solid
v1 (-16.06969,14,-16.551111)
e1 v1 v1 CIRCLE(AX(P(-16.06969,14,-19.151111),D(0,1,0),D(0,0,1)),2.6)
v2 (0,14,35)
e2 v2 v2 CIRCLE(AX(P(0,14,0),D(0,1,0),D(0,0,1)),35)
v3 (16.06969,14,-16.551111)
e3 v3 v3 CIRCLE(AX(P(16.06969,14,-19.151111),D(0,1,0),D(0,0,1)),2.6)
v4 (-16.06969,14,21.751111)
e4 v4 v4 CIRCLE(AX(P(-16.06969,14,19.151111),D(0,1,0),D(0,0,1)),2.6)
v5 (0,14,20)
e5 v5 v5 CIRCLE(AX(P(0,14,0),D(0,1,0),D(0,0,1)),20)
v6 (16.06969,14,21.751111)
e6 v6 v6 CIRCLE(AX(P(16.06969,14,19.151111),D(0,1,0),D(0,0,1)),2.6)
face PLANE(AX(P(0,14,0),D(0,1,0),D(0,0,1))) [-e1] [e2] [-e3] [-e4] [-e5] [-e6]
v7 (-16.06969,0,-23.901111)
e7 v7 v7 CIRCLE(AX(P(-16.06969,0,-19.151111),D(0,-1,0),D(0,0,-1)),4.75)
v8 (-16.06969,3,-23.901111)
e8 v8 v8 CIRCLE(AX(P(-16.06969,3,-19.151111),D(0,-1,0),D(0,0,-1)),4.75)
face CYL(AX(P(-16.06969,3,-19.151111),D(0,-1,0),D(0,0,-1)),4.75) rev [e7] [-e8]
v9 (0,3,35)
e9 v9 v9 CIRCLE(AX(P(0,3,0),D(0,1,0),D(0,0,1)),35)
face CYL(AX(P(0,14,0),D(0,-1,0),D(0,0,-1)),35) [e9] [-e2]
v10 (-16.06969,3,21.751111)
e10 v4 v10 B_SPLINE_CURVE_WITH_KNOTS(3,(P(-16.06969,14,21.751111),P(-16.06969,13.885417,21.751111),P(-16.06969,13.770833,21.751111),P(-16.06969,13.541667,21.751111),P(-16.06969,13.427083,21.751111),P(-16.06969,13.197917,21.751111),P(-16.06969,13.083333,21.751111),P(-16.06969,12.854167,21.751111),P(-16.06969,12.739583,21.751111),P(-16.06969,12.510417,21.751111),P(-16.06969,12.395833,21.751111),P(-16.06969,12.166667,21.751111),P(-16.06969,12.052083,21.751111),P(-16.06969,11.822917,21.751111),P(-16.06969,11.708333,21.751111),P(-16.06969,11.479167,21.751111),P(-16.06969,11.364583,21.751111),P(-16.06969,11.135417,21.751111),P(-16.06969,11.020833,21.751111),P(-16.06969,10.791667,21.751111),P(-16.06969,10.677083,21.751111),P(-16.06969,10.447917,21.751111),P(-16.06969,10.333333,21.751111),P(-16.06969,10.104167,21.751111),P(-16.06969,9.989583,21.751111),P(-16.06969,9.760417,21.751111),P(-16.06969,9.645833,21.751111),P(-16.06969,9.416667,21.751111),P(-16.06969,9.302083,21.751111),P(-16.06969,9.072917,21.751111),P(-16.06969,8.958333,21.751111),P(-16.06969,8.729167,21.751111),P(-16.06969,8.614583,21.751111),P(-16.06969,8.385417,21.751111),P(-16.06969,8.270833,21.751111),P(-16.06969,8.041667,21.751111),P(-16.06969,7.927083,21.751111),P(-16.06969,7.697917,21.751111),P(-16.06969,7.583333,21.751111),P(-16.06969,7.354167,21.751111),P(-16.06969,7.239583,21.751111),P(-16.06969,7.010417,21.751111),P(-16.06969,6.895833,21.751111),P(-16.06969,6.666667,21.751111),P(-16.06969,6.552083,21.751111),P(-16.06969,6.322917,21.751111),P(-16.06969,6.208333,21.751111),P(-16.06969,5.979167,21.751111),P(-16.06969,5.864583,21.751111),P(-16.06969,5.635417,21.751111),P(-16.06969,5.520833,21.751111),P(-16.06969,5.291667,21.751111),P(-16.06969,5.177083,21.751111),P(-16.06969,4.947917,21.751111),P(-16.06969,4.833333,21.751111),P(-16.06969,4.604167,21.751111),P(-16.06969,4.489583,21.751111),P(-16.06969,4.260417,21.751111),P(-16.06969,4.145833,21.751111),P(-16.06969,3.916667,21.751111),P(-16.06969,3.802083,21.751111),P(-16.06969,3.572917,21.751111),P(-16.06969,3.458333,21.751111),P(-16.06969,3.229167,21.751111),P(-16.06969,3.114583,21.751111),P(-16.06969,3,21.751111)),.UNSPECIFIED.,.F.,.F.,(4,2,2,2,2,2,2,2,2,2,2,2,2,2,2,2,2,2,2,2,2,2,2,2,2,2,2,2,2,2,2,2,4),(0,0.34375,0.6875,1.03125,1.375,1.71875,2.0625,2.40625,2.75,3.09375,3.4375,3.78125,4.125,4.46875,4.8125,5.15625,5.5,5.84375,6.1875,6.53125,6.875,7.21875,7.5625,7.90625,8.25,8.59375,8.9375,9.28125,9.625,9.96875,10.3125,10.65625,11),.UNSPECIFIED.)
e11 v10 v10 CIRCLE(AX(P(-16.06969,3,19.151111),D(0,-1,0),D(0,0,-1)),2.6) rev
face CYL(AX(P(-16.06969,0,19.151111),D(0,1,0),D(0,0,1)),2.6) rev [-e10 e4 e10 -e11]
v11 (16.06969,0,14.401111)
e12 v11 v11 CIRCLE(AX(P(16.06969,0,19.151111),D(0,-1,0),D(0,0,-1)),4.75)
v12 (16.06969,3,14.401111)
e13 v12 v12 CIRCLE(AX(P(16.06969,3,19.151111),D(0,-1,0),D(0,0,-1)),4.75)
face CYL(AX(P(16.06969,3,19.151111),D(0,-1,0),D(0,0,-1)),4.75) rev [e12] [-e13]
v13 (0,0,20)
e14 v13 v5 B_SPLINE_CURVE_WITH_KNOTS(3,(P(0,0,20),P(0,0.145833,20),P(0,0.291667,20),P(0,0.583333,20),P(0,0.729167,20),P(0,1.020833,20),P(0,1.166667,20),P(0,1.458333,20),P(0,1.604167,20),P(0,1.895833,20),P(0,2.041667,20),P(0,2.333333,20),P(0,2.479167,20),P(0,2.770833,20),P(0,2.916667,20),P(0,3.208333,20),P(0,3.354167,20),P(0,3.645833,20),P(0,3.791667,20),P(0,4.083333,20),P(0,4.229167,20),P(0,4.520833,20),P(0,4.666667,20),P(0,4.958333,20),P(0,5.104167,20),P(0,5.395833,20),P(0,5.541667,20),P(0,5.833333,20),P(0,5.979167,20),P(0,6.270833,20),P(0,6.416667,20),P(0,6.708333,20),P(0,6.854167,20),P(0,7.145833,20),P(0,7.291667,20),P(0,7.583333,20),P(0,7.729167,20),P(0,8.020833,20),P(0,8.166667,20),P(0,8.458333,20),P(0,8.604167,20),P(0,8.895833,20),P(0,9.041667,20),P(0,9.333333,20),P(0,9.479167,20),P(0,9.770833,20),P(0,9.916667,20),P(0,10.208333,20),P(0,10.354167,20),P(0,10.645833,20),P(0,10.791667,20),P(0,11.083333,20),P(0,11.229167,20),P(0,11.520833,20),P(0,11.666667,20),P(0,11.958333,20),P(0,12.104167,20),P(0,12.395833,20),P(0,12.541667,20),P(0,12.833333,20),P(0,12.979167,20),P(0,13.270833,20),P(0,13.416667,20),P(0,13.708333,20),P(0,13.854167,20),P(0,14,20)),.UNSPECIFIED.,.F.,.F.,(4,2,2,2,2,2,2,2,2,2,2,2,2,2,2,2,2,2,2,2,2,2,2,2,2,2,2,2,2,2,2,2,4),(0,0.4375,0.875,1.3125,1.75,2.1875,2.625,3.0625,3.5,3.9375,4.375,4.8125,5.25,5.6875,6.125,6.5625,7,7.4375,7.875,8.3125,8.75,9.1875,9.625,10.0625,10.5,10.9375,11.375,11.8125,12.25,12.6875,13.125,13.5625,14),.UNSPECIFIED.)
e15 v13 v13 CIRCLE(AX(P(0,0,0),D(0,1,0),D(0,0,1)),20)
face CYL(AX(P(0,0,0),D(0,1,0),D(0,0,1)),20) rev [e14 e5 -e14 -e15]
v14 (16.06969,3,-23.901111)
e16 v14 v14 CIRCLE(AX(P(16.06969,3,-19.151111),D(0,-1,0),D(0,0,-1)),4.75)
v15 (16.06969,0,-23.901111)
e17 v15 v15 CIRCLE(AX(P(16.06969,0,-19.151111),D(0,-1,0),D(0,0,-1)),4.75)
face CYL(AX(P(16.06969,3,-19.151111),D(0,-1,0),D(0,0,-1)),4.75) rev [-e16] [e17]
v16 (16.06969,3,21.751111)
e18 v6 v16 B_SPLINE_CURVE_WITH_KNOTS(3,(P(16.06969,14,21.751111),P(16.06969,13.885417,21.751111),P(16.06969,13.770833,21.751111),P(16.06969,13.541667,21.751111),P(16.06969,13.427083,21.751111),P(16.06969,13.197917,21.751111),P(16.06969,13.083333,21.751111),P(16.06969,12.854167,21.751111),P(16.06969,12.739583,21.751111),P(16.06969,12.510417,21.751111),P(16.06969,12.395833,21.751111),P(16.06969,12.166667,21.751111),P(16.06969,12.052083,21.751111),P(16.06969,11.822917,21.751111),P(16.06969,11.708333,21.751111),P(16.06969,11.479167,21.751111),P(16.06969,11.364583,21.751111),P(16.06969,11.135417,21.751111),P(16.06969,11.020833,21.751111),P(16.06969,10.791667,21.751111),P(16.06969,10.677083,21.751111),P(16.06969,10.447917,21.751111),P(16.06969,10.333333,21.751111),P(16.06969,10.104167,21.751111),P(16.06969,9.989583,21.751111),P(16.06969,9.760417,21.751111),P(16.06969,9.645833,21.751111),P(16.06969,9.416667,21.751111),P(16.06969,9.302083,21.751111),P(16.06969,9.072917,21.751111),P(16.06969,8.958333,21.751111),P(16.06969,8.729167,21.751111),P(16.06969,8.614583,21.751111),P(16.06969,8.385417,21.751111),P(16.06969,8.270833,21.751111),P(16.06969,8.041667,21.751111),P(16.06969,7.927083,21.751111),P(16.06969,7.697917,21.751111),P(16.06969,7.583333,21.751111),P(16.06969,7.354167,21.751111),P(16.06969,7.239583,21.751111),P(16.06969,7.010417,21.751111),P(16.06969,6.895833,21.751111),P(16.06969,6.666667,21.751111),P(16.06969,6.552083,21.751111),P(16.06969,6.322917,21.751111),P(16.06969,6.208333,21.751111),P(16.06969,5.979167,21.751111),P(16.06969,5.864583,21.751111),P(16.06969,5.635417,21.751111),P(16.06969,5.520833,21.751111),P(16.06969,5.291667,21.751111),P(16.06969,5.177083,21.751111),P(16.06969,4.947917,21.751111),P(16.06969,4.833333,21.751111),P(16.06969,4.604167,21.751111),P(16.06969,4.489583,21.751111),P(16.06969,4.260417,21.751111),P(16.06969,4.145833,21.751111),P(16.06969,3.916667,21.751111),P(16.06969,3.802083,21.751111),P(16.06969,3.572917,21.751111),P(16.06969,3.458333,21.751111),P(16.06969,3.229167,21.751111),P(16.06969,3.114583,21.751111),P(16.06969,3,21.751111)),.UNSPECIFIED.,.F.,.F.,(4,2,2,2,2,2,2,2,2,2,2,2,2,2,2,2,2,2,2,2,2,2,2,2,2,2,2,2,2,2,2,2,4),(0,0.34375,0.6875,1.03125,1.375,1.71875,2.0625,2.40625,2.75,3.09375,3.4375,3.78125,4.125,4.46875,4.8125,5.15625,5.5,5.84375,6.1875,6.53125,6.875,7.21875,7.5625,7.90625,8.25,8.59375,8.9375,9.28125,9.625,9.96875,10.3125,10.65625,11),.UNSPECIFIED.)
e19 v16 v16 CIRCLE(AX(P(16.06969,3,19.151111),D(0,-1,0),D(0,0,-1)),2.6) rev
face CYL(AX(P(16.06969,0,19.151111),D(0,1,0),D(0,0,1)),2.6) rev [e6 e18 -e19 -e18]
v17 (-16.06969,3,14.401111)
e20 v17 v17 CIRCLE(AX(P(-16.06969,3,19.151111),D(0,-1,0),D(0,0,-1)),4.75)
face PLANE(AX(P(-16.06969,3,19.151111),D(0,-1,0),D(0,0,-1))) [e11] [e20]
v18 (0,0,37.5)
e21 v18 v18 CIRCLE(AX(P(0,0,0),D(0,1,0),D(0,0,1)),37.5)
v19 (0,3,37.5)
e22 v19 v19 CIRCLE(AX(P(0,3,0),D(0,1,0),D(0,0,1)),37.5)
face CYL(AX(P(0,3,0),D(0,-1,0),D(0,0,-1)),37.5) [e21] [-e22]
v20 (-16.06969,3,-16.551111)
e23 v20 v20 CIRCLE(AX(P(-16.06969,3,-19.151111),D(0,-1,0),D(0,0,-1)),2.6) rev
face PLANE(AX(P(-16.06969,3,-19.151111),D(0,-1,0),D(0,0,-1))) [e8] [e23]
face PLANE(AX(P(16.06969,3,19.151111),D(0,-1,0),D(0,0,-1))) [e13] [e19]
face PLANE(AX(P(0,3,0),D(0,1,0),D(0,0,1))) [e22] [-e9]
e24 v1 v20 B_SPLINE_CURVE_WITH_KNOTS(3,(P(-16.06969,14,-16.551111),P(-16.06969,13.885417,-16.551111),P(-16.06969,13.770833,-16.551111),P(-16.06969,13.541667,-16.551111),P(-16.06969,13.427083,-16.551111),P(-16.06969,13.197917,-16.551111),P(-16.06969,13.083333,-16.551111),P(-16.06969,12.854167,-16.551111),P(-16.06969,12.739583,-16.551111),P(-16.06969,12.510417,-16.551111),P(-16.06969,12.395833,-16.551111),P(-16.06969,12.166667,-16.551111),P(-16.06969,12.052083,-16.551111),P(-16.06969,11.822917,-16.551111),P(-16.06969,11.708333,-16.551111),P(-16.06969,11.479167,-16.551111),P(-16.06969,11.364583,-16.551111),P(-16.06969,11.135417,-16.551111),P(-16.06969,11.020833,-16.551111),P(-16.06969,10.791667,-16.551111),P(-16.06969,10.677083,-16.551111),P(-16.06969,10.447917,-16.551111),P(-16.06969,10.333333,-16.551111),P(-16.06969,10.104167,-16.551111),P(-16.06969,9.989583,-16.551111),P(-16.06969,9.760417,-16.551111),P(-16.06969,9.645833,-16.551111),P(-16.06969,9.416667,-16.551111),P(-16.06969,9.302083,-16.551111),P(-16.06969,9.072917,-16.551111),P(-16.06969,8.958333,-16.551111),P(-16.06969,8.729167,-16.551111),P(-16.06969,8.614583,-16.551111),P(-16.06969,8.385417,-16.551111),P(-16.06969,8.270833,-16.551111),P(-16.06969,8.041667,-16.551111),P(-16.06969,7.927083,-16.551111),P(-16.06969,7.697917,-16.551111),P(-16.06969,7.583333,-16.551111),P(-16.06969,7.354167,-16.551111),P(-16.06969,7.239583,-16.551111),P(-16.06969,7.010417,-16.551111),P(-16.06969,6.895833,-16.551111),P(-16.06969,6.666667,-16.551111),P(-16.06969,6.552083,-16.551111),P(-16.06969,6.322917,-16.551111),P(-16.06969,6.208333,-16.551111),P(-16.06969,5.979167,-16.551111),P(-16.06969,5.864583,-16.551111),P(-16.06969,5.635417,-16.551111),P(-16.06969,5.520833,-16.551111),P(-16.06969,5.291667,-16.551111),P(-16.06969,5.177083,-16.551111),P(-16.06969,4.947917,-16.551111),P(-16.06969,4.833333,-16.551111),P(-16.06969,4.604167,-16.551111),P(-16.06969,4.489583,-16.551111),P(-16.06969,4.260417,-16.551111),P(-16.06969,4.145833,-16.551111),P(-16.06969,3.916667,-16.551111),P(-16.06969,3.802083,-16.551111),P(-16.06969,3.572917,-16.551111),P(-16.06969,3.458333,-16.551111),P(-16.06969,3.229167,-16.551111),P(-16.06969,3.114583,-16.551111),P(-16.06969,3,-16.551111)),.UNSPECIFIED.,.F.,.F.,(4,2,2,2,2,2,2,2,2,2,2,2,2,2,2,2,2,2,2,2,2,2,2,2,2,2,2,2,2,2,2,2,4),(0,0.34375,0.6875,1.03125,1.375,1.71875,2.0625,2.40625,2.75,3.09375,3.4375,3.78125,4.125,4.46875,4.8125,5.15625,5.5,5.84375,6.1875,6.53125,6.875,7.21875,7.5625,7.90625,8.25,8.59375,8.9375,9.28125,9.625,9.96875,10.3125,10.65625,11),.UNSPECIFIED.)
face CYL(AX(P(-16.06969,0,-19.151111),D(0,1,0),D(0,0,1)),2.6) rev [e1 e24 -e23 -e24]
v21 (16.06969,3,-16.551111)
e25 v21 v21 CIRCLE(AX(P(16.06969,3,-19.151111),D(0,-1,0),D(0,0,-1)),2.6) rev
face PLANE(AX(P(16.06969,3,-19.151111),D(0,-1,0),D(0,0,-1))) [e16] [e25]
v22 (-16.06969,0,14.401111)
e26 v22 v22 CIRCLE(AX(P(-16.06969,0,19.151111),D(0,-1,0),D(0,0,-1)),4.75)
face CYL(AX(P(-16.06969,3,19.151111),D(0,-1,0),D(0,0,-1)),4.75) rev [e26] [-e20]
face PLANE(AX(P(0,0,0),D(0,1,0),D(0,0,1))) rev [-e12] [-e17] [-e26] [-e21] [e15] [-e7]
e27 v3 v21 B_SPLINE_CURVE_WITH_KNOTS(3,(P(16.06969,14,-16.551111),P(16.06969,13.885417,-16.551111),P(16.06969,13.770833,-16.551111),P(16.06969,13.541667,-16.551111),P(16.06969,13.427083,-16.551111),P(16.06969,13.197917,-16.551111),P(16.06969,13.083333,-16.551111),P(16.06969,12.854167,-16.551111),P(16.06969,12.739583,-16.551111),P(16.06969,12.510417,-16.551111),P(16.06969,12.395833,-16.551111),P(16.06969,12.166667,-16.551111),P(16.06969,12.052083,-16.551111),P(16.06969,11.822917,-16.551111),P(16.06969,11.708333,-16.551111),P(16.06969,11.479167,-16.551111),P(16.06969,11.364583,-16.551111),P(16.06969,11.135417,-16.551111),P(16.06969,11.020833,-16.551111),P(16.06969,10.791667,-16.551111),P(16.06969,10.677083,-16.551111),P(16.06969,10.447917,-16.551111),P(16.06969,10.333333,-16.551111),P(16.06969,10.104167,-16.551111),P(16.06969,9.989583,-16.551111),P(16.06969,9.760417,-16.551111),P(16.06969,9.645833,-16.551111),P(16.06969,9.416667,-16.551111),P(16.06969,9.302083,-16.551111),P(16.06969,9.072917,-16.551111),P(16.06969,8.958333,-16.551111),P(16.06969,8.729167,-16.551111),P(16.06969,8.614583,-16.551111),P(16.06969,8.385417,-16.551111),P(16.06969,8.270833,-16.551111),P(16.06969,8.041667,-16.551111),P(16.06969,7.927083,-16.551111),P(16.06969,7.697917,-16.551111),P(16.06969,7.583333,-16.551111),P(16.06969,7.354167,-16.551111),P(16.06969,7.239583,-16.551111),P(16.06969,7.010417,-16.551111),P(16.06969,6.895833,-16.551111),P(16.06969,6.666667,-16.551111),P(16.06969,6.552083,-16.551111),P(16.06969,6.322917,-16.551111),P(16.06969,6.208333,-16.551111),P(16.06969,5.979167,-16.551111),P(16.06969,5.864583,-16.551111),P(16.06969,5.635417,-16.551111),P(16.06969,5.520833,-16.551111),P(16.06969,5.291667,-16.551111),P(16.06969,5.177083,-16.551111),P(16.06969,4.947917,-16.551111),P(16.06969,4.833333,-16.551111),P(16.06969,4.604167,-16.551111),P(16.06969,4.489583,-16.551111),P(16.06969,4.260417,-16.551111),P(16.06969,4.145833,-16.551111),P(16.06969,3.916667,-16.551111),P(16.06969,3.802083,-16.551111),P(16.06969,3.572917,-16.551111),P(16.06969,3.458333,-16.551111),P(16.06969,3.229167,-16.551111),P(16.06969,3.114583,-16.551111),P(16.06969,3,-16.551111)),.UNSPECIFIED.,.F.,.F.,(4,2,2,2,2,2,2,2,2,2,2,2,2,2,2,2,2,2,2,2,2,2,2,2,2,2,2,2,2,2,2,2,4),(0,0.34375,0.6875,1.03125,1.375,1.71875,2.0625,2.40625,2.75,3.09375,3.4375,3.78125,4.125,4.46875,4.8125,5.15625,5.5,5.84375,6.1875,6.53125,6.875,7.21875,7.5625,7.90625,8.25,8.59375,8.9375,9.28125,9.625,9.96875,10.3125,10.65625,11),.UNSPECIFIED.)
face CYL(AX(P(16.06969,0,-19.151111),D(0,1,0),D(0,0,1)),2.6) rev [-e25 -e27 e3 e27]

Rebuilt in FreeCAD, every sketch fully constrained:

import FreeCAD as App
import Part
import Sketcher
from FreeCAD import Vector

doc = App.newDocument("Part")
body = doc.addObject("PartDesign::Body", "Body")

# Sketch on XZ plane
sketch1 = doc.addObject("Sketcher::SketchObject", "Sketch")
body.addObject(sketch1)
sketch1.AttachmentSupport = (doc.XZ_Plane, [""])
sketch1.MapMode = "FlatFace"
sketch1.addGeometry(Part.Circle(Vector(0, 0, 0), Vector(0, 0, 1), 37.5), False)
sketch1.addConstraint([
    Sketcher.Constraint("Coincident", 0, 3, -1, 1),
    Sketcher.Constraint("Diameter", 0, 75.0),
])
pad1 = doc.addObject("PartDesign::Pad", "Pad")
body.addObject(pad1)
pad1.Profile = sketch1
pad1.Length = 3
pad1.Reversed = True

# Sketch on XZ plane
sketch2 = doc.addObject("Sketcher::SketchObject", "Sketch001")
body.addObject(sketch2)
sketch2.AttachmentSupport = (doc.XZ_Plane, [""])
sketch2.MapMode = "FlatFace"
sketch2.AttachmentOffset = App.Placement(Vector(0, 0, -3), App.Rotation())
sketch2.addGeometry(Part.Circle(Vector(0, 0, 0), Vector(0, 0, 1), 35), False)
sketch2.addConstraint([
    Sketcher.Constraint("Coincident", 0, 3, -1, 1),
    Sketcher.Constraint("Diameter", 0, 70.0),
])
pad2 = doc.addObject("PartDesign::Pad", "Pad001")
body.addObject(pad2)
pad2.Profile = sketch2
pad2.Length = 11
pad2.Reversed = True

# Sketch on XZ plane
sketch3 = doc.addObject("Sketcher::SketchObject", "Sketch002")
body.addObject(sketch3)
sketch3.AttachmentSupport = (doc.XZ_Plane, [""])
sketch3.MapMode = "FlatFace"
sketch3.AttachmentOffset = App.Placement(Vector(0, 0, -14), App.Rotation())
sketch3.addGeometry([
    Part.Circle(Vector(-16.06969, -19.151111, 0), Vector(0, 0, 1), 2.6),
    Part.Circle(Vector(16.06969, -19.151111, 0), Vector(0, 0, 1), 2.6),
    Part.Circle(Vector(16.06969, 19.151111, 0), Vector(0, 0, 1), 2.6),
    Part.Circle(Vector(-16.06969, 19.151111, 0), Vector(0, 0, 1), 2.6),
], False)
sketch3.addConstraint([
    Sketcher.Constraint("Equal", 0, 1),
    Sketcher.Constraint("Equal", 1, 2),
    Sketcher.Constraint("Equal", 2, 3),
    Sketcher.Constraint("Symmetric", 0, 3, 2, 3, -1, 1),
    Sketcher.Constraint("Symmetric", 1, 3, 3, 3, -1, 1),
    Sketcher.Constraint("Symmetric", 0, 3, 1, 3, -2),
    Sketcher.Constraint("Diameter", 0, 5.2),
    Sketcher.Constraint("DistanceX", 0, 3, -1, 1, 16.06969),
    Sketcher.Constraint("DistanceY", 0, 3, -1, 1, 19.151111),
])
pocket1 = doc.addObject("PartDesign::Pocket", "Pocket")
body.addObject(pocket1)
pocket1.Profile = sketch3
pocket1.Type = "ThroughAll"
pocket1.Reversed = True

# Sketch on XZ plane
sketch4 = doc.addObject("Sketcher::SketchObject", "Sketch003")
body.addObject(sketch4)
sketch4.AttachmentSupport = (doc.XZ_Plane, [""])
sketch4.MapMode = "FlatFace"
sketch4.AttachmentOffset = App.Placement(Vector(0, 0, -14), App.Rotation())
sketch4.addGeometry(Part.Circle(Vector(0, 0, 0), Vector(0, 0, 1), 20), False)
sketch4.addConstraint([
    Sketcher.Constraint("Coincident", 0, 3, -1, 1),
    Sketcher.Constraint("Diameter", 0, 40.0),
])
pocket2 = doc.addObject("PartDesign::Pocket", "Pocket001")
body.addObject(pocket2)
pocket2.Profile = sketch4
pocket2.Type = "ThroughAll"
pocket2.Reversed = True

# Sketch on XZ plane
sketch5 = doc.addObject("Sketcher::SketchObject", "Sketch004")
body.addObject(sketch5)
sketch5.AttachmentSupport = (doc.XZ_Plane, [""])
sketch5.MapMode = "FlatFace"
sketch5.addGeometry([
    Part.Circle(Vector(16.06969, -19.151111, 0), Vector(0, 0, 1), 4.75),
    Part.Circle(Vector(-16.06969, -19.151111, 0), Vector(0, 0, 1), 4.75),
    Part.Circle(Vector(16.06969, 19.151111, 0), Vector(0, 0, 1), 4.75),
    Part.Circle(Vector(-16.06969, 19.151111, 0), Vector(0, 0, 1), 4.75),
], False)
sketch5.addConstraint([
    Sketcher.Constraint("Equal", 0, 1),
    Sketcher.Constraint("Equal", 1, 2),
    Sketcher.Constraint("Equal", 2, 3),
    Sketcher.Constraint("Symmetric", 1, 3, 2, 3, -1, 1),
    Sketcher.Constraint("Symmetric", 0, 3, 3, 3, -1, 1),
    Sketcher.Constraint("Symmetric", 0, 3, 1, 3, -2),
    Sketcher.Constraint("Diameter", 0, 9.5),
    Sketcher.Constraint("DistanceX", -1, 1, 0, 3, 16.06969),
    Sketcher.Constraint("DistanceY", 0, 3, -1, 1, 19.151111),
])
pocket3 = doc.addObject("PartDesign::Pocket", "Pocket002")
body.addObject(pocket3)
pocket3.Profile = sketch5
pocket3.Length = 3

doc.recompute()
